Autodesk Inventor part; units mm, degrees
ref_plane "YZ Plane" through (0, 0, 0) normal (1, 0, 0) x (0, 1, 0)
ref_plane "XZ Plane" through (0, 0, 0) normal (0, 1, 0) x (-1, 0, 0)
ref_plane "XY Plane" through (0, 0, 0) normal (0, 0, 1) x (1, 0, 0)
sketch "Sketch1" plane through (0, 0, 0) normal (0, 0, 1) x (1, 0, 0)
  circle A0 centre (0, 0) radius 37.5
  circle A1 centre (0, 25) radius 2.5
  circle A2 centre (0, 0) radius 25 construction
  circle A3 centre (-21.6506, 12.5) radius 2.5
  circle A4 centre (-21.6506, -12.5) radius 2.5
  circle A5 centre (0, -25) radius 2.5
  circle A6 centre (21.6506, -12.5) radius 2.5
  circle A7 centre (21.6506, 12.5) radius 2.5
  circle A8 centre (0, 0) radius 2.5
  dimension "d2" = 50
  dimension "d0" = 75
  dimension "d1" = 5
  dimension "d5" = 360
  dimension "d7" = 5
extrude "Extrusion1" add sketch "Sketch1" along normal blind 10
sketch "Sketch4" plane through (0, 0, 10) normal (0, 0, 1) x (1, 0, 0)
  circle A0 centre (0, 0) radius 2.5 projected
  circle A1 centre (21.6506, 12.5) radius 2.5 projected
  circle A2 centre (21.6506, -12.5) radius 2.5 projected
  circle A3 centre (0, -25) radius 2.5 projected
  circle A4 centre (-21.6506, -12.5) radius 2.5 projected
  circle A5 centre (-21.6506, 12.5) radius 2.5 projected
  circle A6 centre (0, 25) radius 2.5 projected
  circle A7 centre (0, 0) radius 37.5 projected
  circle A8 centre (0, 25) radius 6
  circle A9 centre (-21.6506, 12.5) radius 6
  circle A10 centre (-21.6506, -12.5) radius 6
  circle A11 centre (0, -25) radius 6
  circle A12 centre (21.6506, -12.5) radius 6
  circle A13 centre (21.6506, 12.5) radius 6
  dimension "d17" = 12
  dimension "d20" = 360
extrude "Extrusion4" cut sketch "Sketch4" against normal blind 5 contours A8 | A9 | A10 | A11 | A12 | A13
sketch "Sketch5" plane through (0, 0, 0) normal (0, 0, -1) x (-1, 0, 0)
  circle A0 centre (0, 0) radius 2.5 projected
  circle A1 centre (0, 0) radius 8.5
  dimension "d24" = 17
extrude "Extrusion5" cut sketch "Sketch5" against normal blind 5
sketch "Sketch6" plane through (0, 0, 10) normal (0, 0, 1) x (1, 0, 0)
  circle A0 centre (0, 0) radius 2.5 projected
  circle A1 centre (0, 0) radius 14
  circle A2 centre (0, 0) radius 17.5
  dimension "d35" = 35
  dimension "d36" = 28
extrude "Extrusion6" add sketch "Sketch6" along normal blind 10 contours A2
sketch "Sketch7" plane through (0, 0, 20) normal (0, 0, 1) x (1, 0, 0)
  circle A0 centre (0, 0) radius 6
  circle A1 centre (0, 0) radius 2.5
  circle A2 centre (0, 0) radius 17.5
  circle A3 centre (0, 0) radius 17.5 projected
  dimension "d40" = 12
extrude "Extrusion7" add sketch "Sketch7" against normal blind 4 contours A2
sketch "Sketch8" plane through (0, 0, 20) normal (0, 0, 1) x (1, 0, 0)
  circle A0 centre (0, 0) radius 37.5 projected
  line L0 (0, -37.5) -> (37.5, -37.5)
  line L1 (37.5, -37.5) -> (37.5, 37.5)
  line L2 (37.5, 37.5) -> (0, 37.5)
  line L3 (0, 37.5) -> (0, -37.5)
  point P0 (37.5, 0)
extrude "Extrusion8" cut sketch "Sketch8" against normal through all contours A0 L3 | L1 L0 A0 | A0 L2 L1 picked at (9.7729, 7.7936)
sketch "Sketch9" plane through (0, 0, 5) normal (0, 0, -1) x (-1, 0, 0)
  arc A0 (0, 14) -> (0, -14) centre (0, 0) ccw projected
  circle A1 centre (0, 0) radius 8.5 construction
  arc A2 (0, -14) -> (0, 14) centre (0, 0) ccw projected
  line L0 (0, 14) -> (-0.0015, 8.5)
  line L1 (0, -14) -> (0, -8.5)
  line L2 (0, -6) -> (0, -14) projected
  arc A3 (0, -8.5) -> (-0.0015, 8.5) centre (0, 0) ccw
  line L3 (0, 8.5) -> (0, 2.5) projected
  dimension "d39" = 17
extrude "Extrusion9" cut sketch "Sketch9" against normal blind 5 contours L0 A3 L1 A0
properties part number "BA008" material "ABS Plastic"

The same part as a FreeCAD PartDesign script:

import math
import FreeCAD as App
import Part
import Sketcher

V = App.Vector
Q = App.Units.Quantity

doc = App.newDocument("Part")
params = doc.addObject("Spreadsheet::Sheet", "Params")
for row, (alias, value) in enumerate([
    ("sketch1_diameter", "75 mm"),
    ("sketch1_diameter2", "5 mm"),
    ("pad1_length", "10 mm"),
    ("sketch2_diameter", "12 mm"),
    ("sketch2_diameter2", "5 mm"),
    ("pocket1_length", "5 mm"),
    ("sketch3_diameter", "17 mm"),
    ("sketch3_diameter2", "5 mm"),
    ("pocket2_length", "5 mm"),
    ("sketch4_diameter", "35 mm"),
    ("sketch4_diameter2", "28 mm"),
    ("pad2_length", "10 mm"),
    ("sketch5_diameter", "12 mm"),
    ("sketch5_diameter2", "35 mm"),
    ("pad3_length", "4 mm"),
    ("sketch6_height", "75 mm"),
    ("sketch6_width", "37.5 mm"),
    ("sketch7_radius", "8.5 mm"),
    ("sketch7_radius2", "14 mm"),
    ("pocket4_length", "5 mm"),
], start=1):
    params.set(f"A{row}", alias)
    params.set(f"B{row}", "=" + value)
    params.setAlias(f"B{row}", alias)

body = doc.addObject("PartDesign::Body", "Body")

sketch1 = body.newObject("Sketcher::SketchObject", "Sketch")
sketch1.AttachmentSupport = (doc.getObject("XY_Plane"), [""])
sketch1.MapMode = "FlatFace"
sketch1.addGeometry(Part.Circle(V(0, 0, 0), V(0, 0, 1), 37.5), False)
sketch1.addGeometry(Part.Circle(V(-21.7, -12.5, 0), V(0, 0, 1), 2.5), False)
sketch1.addGeometry(Part.Circle(V(0, -25, 0), V(0, 0, 1), 2.5), False)
sketch1.addGeometry(Part.Circle(V(21.7, -12.5, 0), V(0, 0, 1), 2.5), False)
sketch1.addGeometry(Part.Circle(V(-21.7, 12.5, 0), V(0, 0, 1), 2.5), False)
sketch1.addGeometry(Part.Circle(V(0, 0, 0), V(0, 0, 1), 2.5), False)
sketch1.addGeometry(Part.Circle(V(21.7, 12.5, 0), V(0, 0, 1), 2.5), False)
sketch1.addGeometry(Part.Circle(V(0, 25, 0), V(0, 0, 1), 2.5), False)
sketch1.addConstraint(Sketcher.Constraint("Coincident", 0, 3, -1, 1))
sketch1.addConstraint(Sketcher.Constraint("Coincident", 5, 3, -1, 1))
sketch1.addConstraint(Sketcher.Constraint("Equal", 1, 2))
sketch1.addConstraint(Sketcher.Constraint("Equal", 2, 3))
sketch1.addConstraint(Sketcher.Constraint("Equal", 3, 4))
sketch1.addConstraint(Sketcher.Constraint("Equal", 4, 5))
sketch1.addConstraint(Sketcher.Constraint("Equal", 5, 6))
sketch1.addConstraint(Sketcher.Constraint("Equal", 6, 7))
sketch1.addConstraint(Sketcher.Constraint("Symmetric", 3, 3, 4, 3, -1, 1))
sketch1.addConstraint(Sketcher.Constraint("Symmetric", 1, 3, 6, 3, -1, 1))
sketch1.addConstraint(Sketcher.Constraint("Symmetric", 2, 3, 7, 3, -1, 1))
sketch1.addConstraint(Sketcher.Constraint("Symmetric", 1, 3, 3, 3, -2))
sketch1.addConstraint(Sketcher.Constraint("PointOnObject", 2, 3, -2))
sketch1.addConstraint(Sketcher.Constraint("Diameter", 0, Q("75 mm")))
sketch1.addConstraint(Sketcher.Constraint("Diameter", 1, Q("5 mm")))
sketch1.addConstraint(Sketcher.Constraint("DistanceY", 2, 3, -1, 1, Q("25 mm")))
sketch1.addConstraint(Sketcher.Constraint("DistanceY", 1, 3, 4, 3, Q("25 mm")))
sketch1.addConstraint(Sketcher.Constraint("DistanceX", 1, 3, -1, 1, Q("21.6506 mm")))
sketch1.setExpression("Constraints[13]", "Params.sketch1_diameter")
sketch1.setExpression("Constraints[14]", "Params.sketch1_diameter2")
pad1 = body.newObject("PartDesign::Pad", "Pad")
pad1.Profile = sketch1
pad1.setExpression("Length", "Params.pad1_length")

sketch2 = body.newObject("Sketcher::SketchObject", "Sketch001")
sketch2.AttachmentSupport = (doc.getObject("XY_Plane"), [""])
sketch2.MapMode = "FlatFace"
sketch2.AttachmentOffset = App.Placement(V(0, 0, 10), App.Rotation())
sketch2.addGeometry(Part.Circle(V(0, 25, 0), V(0, 0, 1), 6), False)
sketch2.addGeometry(Part.Circle(V(0, 25, 0), V(0, 0, 1), 2.5), False)
sketch2.addGeometry(Part.Circle(V(-21.7, 12.5, 0), V(0, 0, 1), 6), False)
sketch2.addGeometry(Part.Circle(V(-21.7, 12.5, 0), V(0, 0, 1), 2.5), False)
sketch2.addGeometry(Part.Circle(V(-21.7, -12.5, 0), V(0, 0, 1), 6), False)
sketch2.addGeometry(Part.Circle(V(-21.7, -12.5, 0), V(0, 0, 1), 2.5), False)
sketch2.addGeometry(Part.Circle(V(0, -25, 0), V(0, 0, 1), 6), False)
sketch2.addGeometry(Part.Circle(V(0, -25, 0), V(0, 0, 1), 2.5), False)
sketch2.addGeometry(Part.Circle(V(21.7, -12.5, 0), V(0, 0, 1), 6), False)
sketch2.addGeometry(Part.Circle(V(21.7, -12.5, 0), V(0, 0, 1), 2.5), False)
sketch2.addGeometry(Part.Circle(V(21.7, 12.5, 0), V(0, 0, 1), 6), False)
sketch2.addGeometry(Part.Circle(V(21.7, 12.5, 0), V(0, 0, 1), 2.5), False)
sketch2.addConstraint(Sketcher.Constraint("Coincident", 1, 3, 0, 3))
sketch2.addConstraint(Sketcher.Constraint("Coincident", 3, 3, 2, 3))
sketch2.addConstraint(Sketcher.Constraint("Coincident", 5, 3, 4, 3))
sketch2.addConstraint(Sketcher.Constraint("Coincident", 7, 3, 6, 3))
sketch2.addConstraint(Sketcher.Constraint("Coincident", 9, 3, 8, 3))
sketch2.addConstraint(Sketcher.Constraint("Coincident", 11, 3, 10, 3))
sketch2.addConstraint(Sketcher.Constraint("Equal", 0, 2))
sketch2.addConstraint(Sketcher.Constraint("Equal", 1, 3))
sketch2.addConstraint(Sketcher.Constraint("Equal", 2, 4))
sketch2.addConstraint(Sketcher.Constraint("Equal", 3, 5))
sketch2.addConstraint(Sketcher.Constraint("Equal", 4, 6))
sketch2.addConstraint(Sketcher.Constraint("Equal", 5, 7))
sketch2.addConstraint(Sketcher.Constraint("Equal", 6, 8))
sketch2.addConstraint(Sketcher.Constraint("Equal", 7, 9))
sketch2.addConstraint(Sketcher.Constraint("Equal", 8, 10))
sketch2.addConstraint(Sketcher.Constraint("Equal", 9, 11))
sketch2.addConstraint(Sketcher.Constraint("Symmetric", 0, 3, 6, 3, -1, 1))
sketch2.addConstraint(Sketcher.Constraint("Symmetric", 2, 3, 8, 3, -1, 1))
sketch2.addConstraint(Sketcher.Constraint("Symmetric", 4, 3, 10, 3, -1, 1))
sketch2.addConstraint(Sketcher.Constraint("Symmetric", 4, 3, 8, 3, -2))
sketch2.addConstraint(Sketcher.Constraint("PointOnObject", 0, 3, -2))
sketch2.addConstraint(Sketcher.Constraint("Diameter", 0, Q("12 mm")))
sketch2.addConstraint(Sketcher.Constraint("Diameter", 1, Q("5 mm")))
sketch2.addConstraint(Sketcher.Constraint("DistanceY", -1, 1, 0, 3, Q("25 mm")))
sketch2.addConstraint(Sketcher.Constraint("DistanceY", 4, 3, 2, 3, Q("25 mm")))
sketch2.addConstraint(Sketcher.Constraint("DistanceX", 2, 3, -1, 1, Q("21.6506 mm")))
sketch2.setExpression("Constraints[21]", "Params.sketch2_diameter")
sketch2.setExpression("Constraints[22]", "Params.sketch2_diameter2")
pocket1 = body.newObject("PartDesign::Pocket", "Pocket")
pocket1.Profile = sketch2
pocket1.setExpression("Length", "Params.pocket1_length")

sketch3 = body.newObject("Sketcher::SketchObject", "Sketch002")
sketch3.AttachmentSupport = (doc.getObject("XY_Plane"), [""])
sketch3.MapMode = "FlatFace"
sketch3.addGeometry(Part.Circle(V(0, 0, 0), V(0, 0, 1), 8.5), False)
sketch3.addGeometry(Part.Circle(V(0, 0, 0), V(0, 0, 1), 2.5), False)
sketch3.addConstraint(Sketcher.Constraint("Coincident", 0, 3, -1, 1))
sketch3.addConstraint(Sketcher.Constraint("Coincident", 1, 3, -1, 1))
sketch3.addConstraint(Sketcher.Constraint("Diameter", 0, Q("17 mm")))
sketch3.addConstraint(Sketcher.Constraint("Diameter", 1, Q("5 mm")))
sketch3.setExpression("Constraints[2]", "Params.sketch3_diameter")
sketch3.setExpression("Constraints[3]", "Params.sketch3_diameter2")
pocket2 = body.newObject("PartDesign::Pocket", "Pocket001")
pocket2.Profile = sketch3
pocket2.setExpression("Length", "Params.pocket2_length")
pocket2.Reversed = True

sketch4 = body.newObject("Sketcher::SketchObject", "Sketch003")
sketch4.AttachmentSupport = (doc.getObject("XY_Plane"), [""])
sketch4.MapMode = "FlatFace"
sketch4.AttachmentOffset = App.Placement(V(0, 0, 10), App.Rotation())
sketch4.addGeometry(Part.Circle(V(0, 0, 0), V(0, 0, 1), 18), False)
sketch4.addGeometry(Part.Circle(V(0, 0, 0), V(0, 0, 1), 14), False)
sketch4.addConstraint(Sketcher.Constraint("Coincident", 0, 3, -1, 1))
sketch4.addConstraint(Sketcher.Constraint("Coincident", 1, 3, -1, 1))
sketch4.addConstraint(Sketcher.Constraint("Diameter", 0, Q("35 mm")))
sketch4.addConstraint(Sketcher.Constraint("Diameter", 1, Q("28 mm")))
sketch4.setExpression("Constraints[2]", "Params.sketch4_diameter")
sketch4.setExpression("Constraints[3]", "Params.sketch4_diameter2")
pad2 = body.newObject("PartDesign::Pad", "Pad001")
pad2.Profile = sketch4
pad2.setExpression("Length", "Params.pad2_length")

sketch5 = body.newObject("Sketcher::SketchObject", "Sketch004")
sketch5.AttachmentSupport = (doc.getObject("XY_Plane"), [""])
sketch5.MapMode = "FlatFace"
sketch5.AttachmentOffset = App.Placement(V(0, 0, 20), App.Rotation())
sketch5.addGeometry(Part.Circle(V(0, 0, 0), V(0, 0, 1), 18), False)
sketch5.addGeometry(Part.Circle(V(0, 0, 0), V(0, 0, 1), 6), False)
sketch5.addConstraint(Sketcher.Constraint("Coincident", 0, 3, -1, 1))
sketch5.addConstraint(Sketcher.Constraint("Coincident", 1, 3, -1, 1))
sketch5.addConstraint(Sketcher.Constraint("Diameter", 1, Q("12 mm")))
sketch5.addConstraint(Sketcher.Constraint("Diameter", 0, Q("35 mm")))
sketch5.setExpression("Constraints[2]", "Params.sketch5_diameter")
sketch5.setExpression("Constraints[3]", "Params.sketch5_diameter2")
pad3 = body.newObject("PartDesign::Pad", "Pad002")
pad3.Profile = sketch5
pad3.setExpression("Length", "Params.pad3_length")
pad3.Reversed = True

sketch6 = body.newObject("Sketcher::SketchObject", "Sketch005")
sketch6.AttachmentSupport = (doc.getObject("XY_Plane"), [""])
sketch6.MapMode = "FlatFace"
sketch6.AttachmentOffset = App.Placement(V(0, 0, 20), App.Rotation())
sketch6.addGeometry(Part.LineSegment(V(0, 38, 0), V(0, -38, 0)), False)
sketch6.addGeometry(Part.LineSegment(V(0, -38, 0), V(38, -38, 0)), False)
sketch6.addGeometry(Part.LineSegment(V(38, -38, 0), V(38, 38, 0)), False)
sketch6.addGeometry(Part.LineSegment(V(38, 38, 0), V(0, 38, 0)), False)
sketch6.addConstraint(Sketcher.Constraint("Coincident", 0, 2, 1, 1))
sketch6.addConstraint(Sketcher.Constraint("Coincident", 1, 2, 2, 1))
sketch6.addConstraint(Sketcher.Constraint("Coincident", 2, 2, 3, 1))
sketch6.addConstraint(Sketcher.Constraint("Coincident", 3, 2, 0, 1))
sketch6.addConstraint(Sketcher.Constraint("Vertical", 0))
sketch6.addConstraint(Sketcher.Constraint("Horizontal", 1))
sketch6.addConstraint(Sketcher.Constraint("Vertical", 2))
sketch6.addConstraint(Sketcher.Constraint("Horizontal", 3))
sketch6.addConstraint(Sketcher.Constraint("Symmetric", 0, 2, 3, 2, -1, 1))
sketch6.addConstraint(Sketcher.Constraint("DistanceY", 0, 2, 0, 1, Q("75 mm")))
sketch6.addConstraint(Sketcher.Constraint("DistanceX", 1, 1, 1, 2, Q("37.5 mm")))
sketch6.setExpression("Constraints[9]", "Params.sketch6_height")
sketch6.setExpression("Constraints[10]", "Params.sketch6_width")
pocket3 = body.newObject("PartDesign::Pocket", "Pocket002")
pocket3.Profile = sketch6
pocket3.Type = "ThroughAll"

sketch7 = body.newObject("Sketcher::SketchObject", "Sketch006")
sketch7.AttachmentSupport = (doc.getObject("XY_Plane"), [""])
sketch7.MapMode = "FlatFace"
sketch7.AttachmentOffset = App.Placement(V(0, 0, 5), App.Rotation())
sketch7.addGeometry(Part.LineSegment(V(0, 8, 0), V(0, 14, 0)), False)
sketch7.addGeometry(Part.ArcOfCircle(Part.Circle(V(0, 0, 0), V(0, 0, 1), 14), math.radians(-90), math.radians(90)), False)
sketch7.addGeometry(Part.LineSegment(V(0, -14, 0), V(0, -8, 0)), False)
sketch7.addGeometry(Part.ArcOfCircle(Part.Circle(V(0, 0, 0), V(0, 0, 1), 8), math.radians(90), math.radians(270)), False)
sketch7.addConstraint(Sketcher.Constraint("Coincident", 0, 2, 1, 2))
sketch7.addConstraint(Sketcher.Constraint("Coincident", 1, 1, 2, 1))
sketch7.addConstraint(Sketcher.Constraint("Coincident", 2, 2, 3, 2))
sketch7.addConstraint(Sketcher.Constraint("Coincident", 3, 1, 0, 1))
sketch7.addConstraint(Sketcher.Constraint("Vertical", 2))
sketch7.addConstraint(Sketcher.Constraint("Coincident", 1, 3, -1, 1))
sketch7.addConstraint(Sketcher.Constraint("Coincident", 3, 3, -1, 1))
sketch7.addConstraint(Sketcher.Constraint("PointOnObject", 0, 2, -2))
sketch7.addConstraint(Sketcher.Constraint("PointOnObject", 1, 1, -2))
sketch7.addConstraint(Sketcher.Constraint("Radius", 3, Q("8.5 mm")))
sketch7.addConstraint(Sketcher.Constraint("Radius", 1, Q("14 mm")))
sketch7.addConstraint(Sketcher.Constraint("DistanceX", -1, 1, 3, 1, Q("0.0015 mm")))
sketch7.setExpression("Constraints[9]", "Params.sketch7_radius")
sketch7.setExpression("Constraints[10]", "Params.sketch7_radius2")
pocket4 = body.newObject("PartDesign::Pocket", "Pocket003")
pocket4.Profile = sketch7
pocket4.setExpression("Length", "Params.pocket4_length")
pocket4.Reversed = True

doc.recompute()
